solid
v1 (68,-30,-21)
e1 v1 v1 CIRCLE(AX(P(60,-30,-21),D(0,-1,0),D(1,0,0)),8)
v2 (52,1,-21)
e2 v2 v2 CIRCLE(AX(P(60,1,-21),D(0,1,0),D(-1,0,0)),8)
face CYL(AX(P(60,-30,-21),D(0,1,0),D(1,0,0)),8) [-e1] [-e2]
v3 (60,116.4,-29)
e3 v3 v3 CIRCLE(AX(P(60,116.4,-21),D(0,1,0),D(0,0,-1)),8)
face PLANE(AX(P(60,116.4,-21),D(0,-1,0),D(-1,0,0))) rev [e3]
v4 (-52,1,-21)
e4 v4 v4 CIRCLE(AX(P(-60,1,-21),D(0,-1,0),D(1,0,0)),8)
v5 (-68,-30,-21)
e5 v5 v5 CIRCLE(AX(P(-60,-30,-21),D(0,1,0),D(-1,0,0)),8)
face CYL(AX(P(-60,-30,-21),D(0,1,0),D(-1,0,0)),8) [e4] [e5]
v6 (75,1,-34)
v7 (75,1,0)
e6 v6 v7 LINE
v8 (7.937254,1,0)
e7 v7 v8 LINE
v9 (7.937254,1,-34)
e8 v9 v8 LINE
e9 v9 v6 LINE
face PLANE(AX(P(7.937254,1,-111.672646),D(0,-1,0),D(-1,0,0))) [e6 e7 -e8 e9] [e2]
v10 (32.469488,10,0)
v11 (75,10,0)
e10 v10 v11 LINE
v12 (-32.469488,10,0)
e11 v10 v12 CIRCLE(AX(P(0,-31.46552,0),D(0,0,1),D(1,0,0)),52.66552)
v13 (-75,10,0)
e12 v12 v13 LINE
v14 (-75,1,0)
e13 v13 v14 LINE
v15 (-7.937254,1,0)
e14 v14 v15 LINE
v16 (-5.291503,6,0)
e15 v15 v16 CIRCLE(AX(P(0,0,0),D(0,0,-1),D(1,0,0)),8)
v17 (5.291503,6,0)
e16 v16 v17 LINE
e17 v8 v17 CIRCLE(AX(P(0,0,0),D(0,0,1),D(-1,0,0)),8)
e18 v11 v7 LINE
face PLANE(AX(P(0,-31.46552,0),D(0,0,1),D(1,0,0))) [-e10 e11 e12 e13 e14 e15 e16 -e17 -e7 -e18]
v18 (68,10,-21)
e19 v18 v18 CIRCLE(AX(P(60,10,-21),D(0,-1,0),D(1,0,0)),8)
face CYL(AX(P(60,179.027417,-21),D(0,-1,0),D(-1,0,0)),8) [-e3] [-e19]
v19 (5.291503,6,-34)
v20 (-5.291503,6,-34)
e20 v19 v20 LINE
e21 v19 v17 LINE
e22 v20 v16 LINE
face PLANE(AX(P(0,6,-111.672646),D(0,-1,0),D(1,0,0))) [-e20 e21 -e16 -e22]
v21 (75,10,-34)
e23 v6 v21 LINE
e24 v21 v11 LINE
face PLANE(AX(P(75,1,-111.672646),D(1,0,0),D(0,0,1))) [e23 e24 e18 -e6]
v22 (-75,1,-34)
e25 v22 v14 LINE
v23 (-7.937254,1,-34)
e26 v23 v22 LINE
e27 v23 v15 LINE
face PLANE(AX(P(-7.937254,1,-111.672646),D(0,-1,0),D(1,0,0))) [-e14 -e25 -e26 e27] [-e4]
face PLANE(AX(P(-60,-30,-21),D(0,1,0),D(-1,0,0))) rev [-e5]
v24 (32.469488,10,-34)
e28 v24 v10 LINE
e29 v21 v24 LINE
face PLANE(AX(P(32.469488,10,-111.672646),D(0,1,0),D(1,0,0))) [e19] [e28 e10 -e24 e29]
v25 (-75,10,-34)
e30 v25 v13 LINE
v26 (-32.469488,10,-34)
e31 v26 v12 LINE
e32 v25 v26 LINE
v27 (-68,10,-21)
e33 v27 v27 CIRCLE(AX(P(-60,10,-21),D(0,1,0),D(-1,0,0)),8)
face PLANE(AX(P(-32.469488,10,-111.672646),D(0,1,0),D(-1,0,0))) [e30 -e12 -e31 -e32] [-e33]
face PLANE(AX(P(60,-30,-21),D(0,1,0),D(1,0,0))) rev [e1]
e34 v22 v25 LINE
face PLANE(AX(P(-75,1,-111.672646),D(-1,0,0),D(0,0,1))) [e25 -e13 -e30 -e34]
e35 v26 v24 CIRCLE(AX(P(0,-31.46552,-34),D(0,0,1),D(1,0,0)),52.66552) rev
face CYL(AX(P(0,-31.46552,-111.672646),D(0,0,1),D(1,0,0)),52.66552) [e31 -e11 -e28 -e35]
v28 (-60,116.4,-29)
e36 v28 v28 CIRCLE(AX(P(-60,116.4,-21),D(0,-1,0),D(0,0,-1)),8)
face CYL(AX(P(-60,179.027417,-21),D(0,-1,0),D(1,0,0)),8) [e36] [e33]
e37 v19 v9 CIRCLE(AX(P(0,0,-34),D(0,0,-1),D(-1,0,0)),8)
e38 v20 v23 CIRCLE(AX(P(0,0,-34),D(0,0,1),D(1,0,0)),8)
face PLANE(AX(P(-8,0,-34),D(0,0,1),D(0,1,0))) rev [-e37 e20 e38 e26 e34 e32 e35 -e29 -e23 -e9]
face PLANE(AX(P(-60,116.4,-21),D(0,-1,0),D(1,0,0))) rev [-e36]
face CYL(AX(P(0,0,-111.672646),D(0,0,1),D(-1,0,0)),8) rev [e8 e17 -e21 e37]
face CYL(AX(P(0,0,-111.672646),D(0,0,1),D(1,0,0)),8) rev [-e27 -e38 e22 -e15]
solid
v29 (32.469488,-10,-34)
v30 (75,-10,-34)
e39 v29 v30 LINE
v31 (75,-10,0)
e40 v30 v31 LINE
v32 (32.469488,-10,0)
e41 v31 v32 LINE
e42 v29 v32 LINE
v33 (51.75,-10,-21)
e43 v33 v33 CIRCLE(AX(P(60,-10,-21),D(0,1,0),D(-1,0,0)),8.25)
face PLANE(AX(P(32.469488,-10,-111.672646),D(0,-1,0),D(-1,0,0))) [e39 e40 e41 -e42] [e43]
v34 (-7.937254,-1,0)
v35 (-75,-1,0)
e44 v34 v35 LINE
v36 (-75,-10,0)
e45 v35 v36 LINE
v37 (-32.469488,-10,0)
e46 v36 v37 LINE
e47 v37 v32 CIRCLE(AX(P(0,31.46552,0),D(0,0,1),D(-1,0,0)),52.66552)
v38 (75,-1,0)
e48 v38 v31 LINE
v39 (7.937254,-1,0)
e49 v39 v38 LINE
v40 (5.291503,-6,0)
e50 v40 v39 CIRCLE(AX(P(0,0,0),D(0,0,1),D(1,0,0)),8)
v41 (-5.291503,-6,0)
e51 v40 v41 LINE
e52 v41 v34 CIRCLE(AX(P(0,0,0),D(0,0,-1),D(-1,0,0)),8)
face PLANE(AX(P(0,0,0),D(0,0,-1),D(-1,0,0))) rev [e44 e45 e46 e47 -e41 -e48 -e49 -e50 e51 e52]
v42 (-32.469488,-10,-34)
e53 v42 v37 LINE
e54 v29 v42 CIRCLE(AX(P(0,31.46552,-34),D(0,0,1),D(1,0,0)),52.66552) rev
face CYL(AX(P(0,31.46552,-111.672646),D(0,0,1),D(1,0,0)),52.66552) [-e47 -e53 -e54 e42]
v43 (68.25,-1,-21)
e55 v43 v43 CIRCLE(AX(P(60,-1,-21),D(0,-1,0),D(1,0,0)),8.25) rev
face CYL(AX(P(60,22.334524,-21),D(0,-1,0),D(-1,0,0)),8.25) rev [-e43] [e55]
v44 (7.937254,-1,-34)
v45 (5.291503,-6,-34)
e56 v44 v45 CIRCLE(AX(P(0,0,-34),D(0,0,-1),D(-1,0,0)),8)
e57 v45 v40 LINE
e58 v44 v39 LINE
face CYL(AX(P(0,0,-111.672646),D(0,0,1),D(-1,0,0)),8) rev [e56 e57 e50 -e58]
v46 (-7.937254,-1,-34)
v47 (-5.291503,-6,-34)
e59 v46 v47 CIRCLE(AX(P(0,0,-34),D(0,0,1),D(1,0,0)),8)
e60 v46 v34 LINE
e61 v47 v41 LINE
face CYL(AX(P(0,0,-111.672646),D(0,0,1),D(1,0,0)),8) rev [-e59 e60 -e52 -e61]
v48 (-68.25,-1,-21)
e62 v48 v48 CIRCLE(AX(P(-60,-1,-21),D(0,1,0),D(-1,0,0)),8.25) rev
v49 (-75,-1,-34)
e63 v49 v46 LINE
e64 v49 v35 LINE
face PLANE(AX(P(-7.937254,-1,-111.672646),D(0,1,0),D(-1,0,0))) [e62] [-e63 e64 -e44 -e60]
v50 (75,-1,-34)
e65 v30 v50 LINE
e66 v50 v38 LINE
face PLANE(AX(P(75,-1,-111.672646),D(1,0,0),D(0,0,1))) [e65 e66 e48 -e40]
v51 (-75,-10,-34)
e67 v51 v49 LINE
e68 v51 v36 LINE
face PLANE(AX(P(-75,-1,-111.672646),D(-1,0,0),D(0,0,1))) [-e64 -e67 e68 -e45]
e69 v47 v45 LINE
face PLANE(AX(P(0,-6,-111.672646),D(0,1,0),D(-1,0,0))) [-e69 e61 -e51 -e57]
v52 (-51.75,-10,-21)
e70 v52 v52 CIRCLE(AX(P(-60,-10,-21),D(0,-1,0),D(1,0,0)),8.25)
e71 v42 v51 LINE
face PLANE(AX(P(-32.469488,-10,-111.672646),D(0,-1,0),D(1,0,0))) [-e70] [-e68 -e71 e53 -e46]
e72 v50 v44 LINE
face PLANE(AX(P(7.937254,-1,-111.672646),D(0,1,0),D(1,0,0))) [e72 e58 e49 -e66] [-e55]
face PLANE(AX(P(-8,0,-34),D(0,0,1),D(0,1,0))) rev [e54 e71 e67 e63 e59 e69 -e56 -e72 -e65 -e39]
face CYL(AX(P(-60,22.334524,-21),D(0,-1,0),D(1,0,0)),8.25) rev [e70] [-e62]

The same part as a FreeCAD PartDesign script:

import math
import FreeCAD as App
import Part
import Sketcher
Q = App.Units.Quantity

doc = App.newDocument("Part")
body = doc.addObject("PartDesign::Body", "Body")

# Sketch on XY plane
sketch1 = body.newObject("Sketcher::SketchObject", "Sketch")
sketch1.AttachmentSupport = (doc.getObject("XY_Plane"), [""])
sketch1.MapMode = "FlatFace"
sketch1.addGeometry(Part.LineSegment(App.Vector(0, 6, 0), App.Vector(0, 21, 0)), False)
sketch1.addGeometry(Part.ArcOfCircle(Part.Circle(App.Vector(0, -31, 0), App.Vector(0, 0, 1), 53), math.radians(90), math.radians(128)), False)
sketch1.addGeometry(Part.LineSegment(App.Vector(-32, 10, 0), App.Vector(-75, 10, 0)), False)
sketch1.addGeometry(Part.LineSegment(App.Vector(-75, 10, 0), App.Vector(-75, 1, 0)), False)
sketch1.addGeometry(Part.LineSegment(App.Vector(-75, 1, 0), App.Vector(-8, 1, 0)), False)
sketch1.addGeometry(Part.ArcOfCircle(Part.Circle(App.Vector(0, 0, 0), App.Vector(0, 0, 1), 8), math.radians(131), math.radians(173)), False)
sketch1.addGeometry(Part.LineSegment(App.Vector(-5, 6, 0), App.Vector(0, 6, 0)), False)
sketch1.addConstraint(Sketcher.Constraint("Coincident", 0, 2, 1, 1))
sketch1.addConstraint(Sketcher.Constraint("Coincident", 1, 2, 2, 1))
sketch1.addConstraint(Sketcher.Constraint("Coincident", 2, 2, 3, 1))
sketch1.addConstraint(Sketcher.Constraint("Coincident", 3, 2, 4, 1))
sketch1.addConstraint(Sketcher.Constraint("Coincident", 4, 2, 5, 2))
sketch1.addConstraint(Sketcher.Constraint("Coincident", 5, 1, 6, 1))
sketch1.addConstraint(Sketcher.Constraint("Coincident", 6, 2, 0, 1))
sketch1.addConstraint(Sketcher.Constraint("Vertical", 0))
sketch1.addConstraint(Sketcher.Constraint("Horizontal", 2))
sketch1.addConstraint(Sketcher.Constraint("Vertical", 3))
sketch1.addConstraint(Sketcher.Constraint("Horizontal", 4))
sketch1.addConstraint(Sketcher.Constraint("Horizontal", 6))
sketch1.addConstraint(Sketcher.Constraint("Coincident", 5, 3, -1, 1))
sketch1.addConstraint(Sketcher.Constraint("PointOnObject", 1, 3, -2))
sketch1.addConstraint(Sketcher.Constraint("PointOnObject", 0, 2, -2))
sketch1.addConstraint(Sketcher.Constraint("Radius", 5, Q("8 mm")))
sketch1.addConstraint(Sketcher.Constraint("DistanceY", 3, 2, 3, 1, Q("9 mm")))
sketch1.addConstraint(Sketcher.Constraint("DistanceY", 0, 1, 0, 2, Q("15.2 mm")))
sketch1.addConstraint(Sketcher.Constraint("DistanceY", -1, 1, 1, 2, Q("10 mm")))
sketch1.addConstraint(Sketcher.Constraint("DistanceX", 2, 2, -1, 1, Q("75 mm")))
sketch1.addConstraint(Sketcher.Constraint("DistanceY", -1, 1, 5, 1, Q("6 mm")))
sketch1.addConstraint(Sketcher.Constraint("Radius", 1, Q("52.66552 mm")))
pad1 = body.newObject("PartDesign::Pad", "Pad")
pad1.Profile = sketch1
pad1.Length = 34
pad1.Reversed = True

# Sketch on XZ plane
sketch2 = body.newObject("Sketcher::SketchObject", "Sketch001")
sketch2.AttachmentSupport = (doc.getObject("XZ_Plane"), [""])
sketch2.MapMode = "FlatFace"
sketch2.AttachmentOffset = App.Placement(App.Vector(0, 0, -10), App.Rotation())
sketch2.addGeometry(Part.Circle(App.Vector(-60, -21, 0), App.Vector(0, 0, 1), 8), False)
sketch2.addConstraint(Sketcher.Constraint("Diameter", 0, Q("16 mm")))
sketch2.addConstraint(Sketcher.Constraint("DistanceX", 0, 3, -1, 1, Q("60 mm")))
sketch2.addConstraint(Sketcher.Constraint("DistanceY", 0, 3, -1, 1, Q("21 mm")))
pad2 = body.newObject("PartDesign::Pad", "Pad001")
pad2.Profile = sketch2
pad2.Length = 106.4
pad2.Reversed = True

# Sketch on XZ plane
sketch3 = body.newObject("Sketcher::SketchObject", "Sketch002")
sketch3.AttachmentSupport = (doc.getObject("XZ_Plane"), [""])
sketch3.MapMode = "FlatFace"
sketch3.AttachmentOffset = App.Placement(App.Vector(0, 0, -10), App.Rotation())
sketch3.addGeometry(Part.Circle(App.Vector(-60, -21, 0), App.Vector(0, 0, 1), 8), False)
sketch3.addConstraint(Sketcher.Constraint("Diameter", 0, Q("16 mm")))
sketch3.addConstraint(Sketcher.Constraint("DistanceX", 0, 3, -1, 1, Q("60 mm")))
sketch3.addConstraint(Sketcher.Constraint("DistanceY", 0, 3, -1, 1, Q("21 mm")))
pad3 = body.newObject("PartDesign::Pad", "Pad002")
pad3.Profile = sketch3
pad3.Length = 40
body2 = doc.addObject("PartDesign::Body", "Body001")

# Sketch on XY plane
sketch4 = body2.newObject("Sketcher::SketchObject", "Sketch003")
sketch4.AttachmentSupport = (doc.getObject("XY_Plane001"), [""])
sketch4.MapMode = "FlatFace"
sketch4.addGeometry(Part.LineSegment(App.Vector(0, -6, 0), App.Vector(-5, -6, 0)), False)
sketch4.addGeometry(Part.ArcOfCircle(Part.Circle(App.Vector(0, 0, 0), App.Vector(0, 0, 1), 8), math.radians(-173), math.radians(-131)), False)
sketch4.addGeometry(Part.LineSegment(App.Vector(-8, -1, 0), App.Vector(-75, -1, 0)), False)
sketch4.addGeometry(Part.LineSegment(App.Vector(-75, -1, 0), App.Vector(-75, -10, 0)), False)
sketch4.addGeometry(Part.LineSegment(App.Vector(-75, -10, 0), App.Vector(-32, -10, 0)), False)
sketch4.addGeometry(Part.ArcOfCircle(Part.Circle(App.Vector(0, 31, 0), App.Vector(0, 0, 1), 53), math.radians(-128), math.radians(-90)), False)
sketch4.addGeometry(Part.LineSegment(App.Vector(0, -21, 0), App.Vector(0, -6, 0)), False)
sketch4.addConstraint(Sketcher.Constraint("Coincident", 0, 2, 1, 2))
sketch4.addConstraint(Sketcher.Constraint("Coincident", 1, 1, 2, 1))
sketch4.addConstraint(Sketcher.Constraint("Coincident", 2, 2, 3, 1))
sketch4.addConstraint(Sketcher.Constraint("Coincident", 3, 2, 4, 1))
sketch4.addConstraint(Sketcher.Constraint("Coincident", 4, 2, 5, 1))
sketch4.addConstraint(Sketcher.Constraint("Coincident", 5, 2, 6, 1))
sketch4.addConstraint(Sketcher.Constraint("Coincident", 6, 2, 0, 1))
sketch4.addConstraint(Sketcher.Constraint("Horizontal", 0))
sketch4.addConstraint(Sketcher.Constraint("Horizontal", 2))
sketch4.addConstraint(Sketcher.Constraint("Vertical", 3))
sketch4.addConstraint(Sketcher.Constraint("Horizontal", 4))
sketch4.addConstraint(Sketcher.Constraint("Vertical", 6))
sketch4.addConstraint(Sketcher.Constraint("Coincident", 1, 3, -1, 1))
sketch4.addConstraint(Sketcher.Constraint("PointOnObject", 5, 3, -2))
sketch4.addConstraint(Sketcher.Constraint("PointOnObject", 5, 2, -2))
sketch4.addConstraint(Sketcher.Constraint("Radius", 1, Q("8 mm")))
sketch4.addConstraint(Sketcher.Constraint("DistanceY", 3, 2, 3, 1, Q("9 mm")))
sketch4.addConstraint(Sketcher.Constraint("DistanceY", 6, 1, 6, 2, Q("15.2 mm")))
sketch4.addConstraint(Sketcher.Constraint("DistanceY", 0, 2, -1, 1, Q("6 mm")))
sketch4.addConstraint(Sketcher.Constraint("DistanceY", 1, 1, -1, 1, Q("1 mm")))
sketch4.addConstraint(Sketcher.Constraint("DistanceX", 2, 2, -1, 1, Q("75 mm")))
sketch4.addConstraint(Sketcher.Constraint("Radius", 5, Q("52.66552 mm")))
pad4 = body2.newObject("PartDesign::Pad", "Pad003")
pad4.Profile = sketch4
pad4.Length = 34
pad4.Reversed = True

# Sketch on XZ plane
sketch5 = body2.newObject("Sketcher::SketchObject", "Sketch004")
sketch5.AttachmentSupport = (doc.getObject("XZ_Plane001"), [""])
sketch5.MapMode = "FlatFace"
sketch5.AttachmentOffset = App.Placement(App.Vector(0, 0, 10), App.Rotation())
sketch5.addGeometry(Part.Circle(App.Vector(-60, -21, 0), App.Vector(0, 0, 1), 8), False)
sketch5.addConstraint(Sketcher.Constraint("Diameter", 0, Q("16.5 mm")))
sketch5.addConstraint(Sketcher.Constraint("DistanceX", 0, 3, -1, 1, Q("60 mm")))
sketch5.addConstraint(Sketcher.Constraint("DistanceY", 0, 3, -1, 1, Q("21 mm")))
pocket1 = body2.newObject("PartDesign::Pocket", "Pocket")
pocket1.Profile = sketch5
pocket1.Length = 9
body3 = doc.addObject("PartDesign::Body", "Body002")
doc.recompute()

body3.BaseFeature = body
doc.recompute()

mirroring = doc.addObject("Part::Mirroring", "Mirroring")
mirroring.Source = body
mirroring.Base = App.Vector(0, -21.2, -111.672646)
mirroring.Normal = App.Vector(1, 0, 0)
body4 = doc.addObject("PartDesign::Body", "Body003")
body4.BaseFeature = mirroring
boolean = body3.newObject("PartDesign::Boolean", "Boolean")
boolean.Type = "Fuse"
boolean.addObjects([body4])
doc.recompute()
body5 = doc.addObject("PartDesign::Body", "Body004")
doc.recompute()

body5.BaseFeature = body2
doc.recompute()

mirroring2 = doc.addObject("Part::Mirroring", "Mirroring001")
mirroring2.Source = body2
mirroring2.Base = App.Vector(0, -21.2, -111.672646)
mirroring2.Normal = App.Vector(1, 0, 0)
body6 = doc.addObject("PartDesign::Body", "Body005")
body6.BaseFeature = mirroring2
boolean2 = body5.newObject("PartDesign::Boolean", "Boolean001")
boolean2.Type = "Fuse"
boolean2.addObjects([body6])
doc.recompute()
mirroring.Visibility = False
mirroring2.Visibility = False

doc.recompute()
